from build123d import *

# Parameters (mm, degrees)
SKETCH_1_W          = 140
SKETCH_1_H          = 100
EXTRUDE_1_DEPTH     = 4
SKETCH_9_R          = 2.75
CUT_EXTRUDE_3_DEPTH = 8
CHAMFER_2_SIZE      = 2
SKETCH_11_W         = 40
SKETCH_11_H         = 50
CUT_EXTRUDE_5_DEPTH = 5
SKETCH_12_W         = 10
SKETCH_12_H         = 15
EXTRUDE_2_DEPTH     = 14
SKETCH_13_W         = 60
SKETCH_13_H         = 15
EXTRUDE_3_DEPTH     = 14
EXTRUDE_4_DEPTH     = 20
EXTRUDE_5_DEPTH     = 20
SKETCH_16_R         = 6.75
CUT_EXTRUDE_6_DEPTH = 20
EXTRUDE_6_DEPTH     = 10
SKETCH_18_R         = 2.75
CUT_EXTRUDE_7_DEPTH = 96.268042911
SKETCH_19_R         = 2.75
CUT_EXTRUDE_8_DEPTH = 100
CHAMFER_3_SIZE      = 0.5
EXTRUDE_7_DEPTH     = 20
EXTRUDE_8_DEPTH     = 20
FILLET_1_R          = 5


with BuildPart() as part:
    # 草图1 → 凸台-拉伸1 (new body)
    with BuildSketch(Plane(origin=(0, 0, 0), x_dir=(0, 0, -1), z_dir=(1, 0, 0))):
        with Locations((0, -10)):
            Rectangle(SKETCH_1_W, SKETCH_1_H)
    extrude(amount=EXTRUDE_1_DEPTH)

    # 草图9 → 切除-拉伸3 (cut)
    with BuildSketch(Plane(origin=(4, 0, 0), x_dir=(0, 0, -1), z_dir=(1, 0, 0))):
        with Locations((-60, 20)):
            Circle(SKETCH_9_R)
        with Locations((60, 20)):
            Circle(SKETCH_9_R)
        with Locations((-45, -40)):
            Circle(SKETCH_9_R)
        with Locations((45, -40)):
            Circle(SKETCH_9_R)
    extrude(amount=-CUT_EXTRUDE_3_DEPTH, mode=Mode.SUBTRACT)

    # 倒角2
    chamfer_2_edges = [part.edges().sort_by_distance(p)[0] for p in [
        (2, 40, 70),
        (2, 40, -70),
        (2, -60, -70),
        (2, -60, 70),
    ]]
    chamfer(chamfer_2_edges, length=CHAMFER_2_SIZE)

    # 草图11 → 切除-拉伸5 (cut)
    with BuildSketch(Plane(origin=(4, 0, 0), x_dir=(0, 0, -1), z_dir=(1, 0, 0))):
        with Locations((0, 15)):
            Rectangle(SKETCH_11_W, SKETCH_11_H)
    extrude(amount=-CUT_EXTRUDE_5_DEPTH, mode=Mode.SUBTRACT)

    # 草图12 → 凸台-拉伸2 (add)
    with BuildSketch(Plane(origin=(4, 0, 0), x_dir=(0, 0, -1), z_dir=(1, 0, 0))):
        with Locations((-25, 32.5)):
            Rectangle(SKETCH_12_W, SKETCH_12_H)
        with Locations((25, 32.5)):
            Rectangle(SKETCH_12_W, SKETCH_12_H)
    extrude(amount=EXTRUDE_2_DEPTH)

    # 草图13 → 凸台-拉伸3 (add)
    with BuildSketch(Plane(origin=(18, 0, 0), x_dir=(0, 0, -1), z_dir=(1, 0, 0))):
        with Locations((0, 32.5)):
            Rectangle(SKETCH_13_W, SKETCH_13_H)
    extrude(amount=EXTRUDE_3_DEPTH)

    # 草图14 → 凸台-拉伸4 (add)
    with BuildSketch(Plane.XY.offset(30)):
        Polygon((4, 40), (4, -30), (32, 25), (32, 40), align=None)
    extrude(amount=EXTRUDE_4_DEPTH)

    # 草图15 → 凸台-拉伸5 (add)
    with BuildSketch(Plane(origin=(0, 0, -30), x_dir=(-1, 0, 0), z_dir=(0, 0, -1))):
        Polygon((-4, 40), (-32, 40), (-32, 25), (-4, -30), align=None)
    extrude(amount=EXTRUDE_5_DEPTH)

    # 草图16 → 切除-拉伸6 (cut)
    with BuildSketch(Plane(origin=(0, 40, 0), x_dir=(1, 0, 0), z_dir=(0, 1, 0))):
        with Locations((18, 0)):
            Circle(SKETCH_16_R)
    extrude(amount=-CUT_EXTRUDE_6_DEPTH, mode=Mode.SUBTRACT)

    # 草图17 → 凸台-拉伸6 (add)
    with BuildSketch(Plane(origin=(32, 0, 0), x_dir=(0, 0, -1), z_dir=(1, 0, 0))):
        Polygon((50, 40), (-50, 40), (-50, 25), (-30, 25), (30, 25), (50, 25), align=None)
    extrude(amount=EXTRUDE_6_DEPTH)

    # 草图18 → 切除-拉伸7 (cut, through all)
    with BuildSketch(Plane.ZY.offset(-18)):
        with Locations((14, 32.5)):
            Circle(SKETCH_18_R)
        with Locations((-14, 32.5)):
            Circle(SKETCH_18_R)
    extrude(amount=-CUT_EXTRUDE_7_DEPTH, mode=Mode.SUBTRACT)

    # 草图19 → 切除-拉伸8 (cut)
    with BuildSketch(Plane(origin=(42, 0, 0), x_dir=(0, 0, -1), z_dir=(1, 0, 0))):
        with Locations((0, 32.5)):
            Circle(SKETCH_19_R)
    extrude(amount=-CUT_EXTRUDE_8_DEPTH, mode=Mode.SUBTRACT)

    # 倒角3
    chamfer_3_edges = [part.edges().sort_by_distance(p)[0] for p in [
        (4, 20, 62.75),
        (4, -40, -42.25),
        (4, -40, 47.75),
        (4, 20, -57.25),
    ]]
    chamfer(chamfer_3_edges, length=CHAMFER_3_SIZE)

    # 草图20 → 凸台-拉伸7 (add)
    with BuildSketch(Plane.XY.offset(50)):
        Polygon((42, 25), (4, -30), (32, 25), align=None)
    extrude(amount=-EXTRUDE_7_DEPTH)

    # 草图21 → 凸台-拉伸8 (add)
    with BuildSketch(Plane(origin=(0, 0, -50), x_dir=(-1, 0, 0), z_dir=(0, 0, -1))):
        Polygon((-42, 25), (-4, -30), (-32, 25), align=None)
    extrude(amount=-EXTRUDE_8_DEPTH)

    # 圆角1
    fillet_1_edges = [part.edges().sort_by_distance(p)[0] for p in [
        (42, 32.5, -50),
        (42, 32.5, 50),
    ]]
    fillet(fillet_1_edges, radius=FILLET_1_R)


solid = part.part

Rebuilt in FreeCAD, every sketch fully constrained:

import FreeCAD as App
import Part
import Sketcher

V = App.Vector


def edges_at(feature, points):
    """Names of the edges that pass closest to the given points."""
    edges = feature.Shape.Edges
    near = lambda p: min(range(len(edges)), key=lambda i: edges[i].distToShape(Part.Vertex(*p))[0])
    return sorted({f"Edge{near(p) + 1}" for p in points})

doc = App.newDocument("Part")
body = doc.addObject("PartDesign::Body", "Body")

# Sketch on YZ plane
sketch1 = body.newObject("Sketcher::SketchObject", "Sketch")
sketch1.AttachmentSupport = (doc.getObject("YZ_Plane"), [""])
sketch1.MapMode = "FlatFace"
sketch1.addGeometry([
    Part.LineSegment(V(40, 70, 0), V(-60, 70, 0)),
    Part.LineSegment(V(-60, 70, 0), V(-60, -70, 0)),
    Part.LineSegment(V(-60, -70, 0), V(40, -70, 0)),
    Part.LineSegment(V(40, -70, 0), V(40, 70, 0)),
], False)
sketch1.addConstraint([
    Sketcher.Constraint("Coincident", 0, 2, 1, 1),
    Sketcher.Constraint("Coincident", 1, 2, 2, 1),
    Sketcher.Constraint("Coincident", 2, 2, 3, 1),
    Sketcher.Constraint("Coincident", 3, 2, 0, 1),
    Sketcher.Constraint("Horizontal", 0),
    Sketcher.Constraint("Vertical", 1),
    Sketcher.Constraint("Horizontal", 2),
    Sketcher.Constraint("Vertical", 3),
    Sketcher.Constraint("DistanceX", 0, 2, 0, 1, 100.0),
    Sketcher.Constraint("DistanceY", 1, 2, 1, 1, 140.0),
    Sketcher.Constraint("DistanceX", 0, 2, -1, 1, 60.0),
    Sketcher.Constraint("DistanceY", -1, 1, 0, 2, 70.0),
])
pad1 = body.newObject("PartDesign::Pad", "Pad")
pad1.Profile = sketch1
pad1.Length = 4

# Sketch on YZ plane
sketch2 = body.newObject("Sketcher::SketchObject", "Sketch001")
sketch2.AttachmentSupport = (doc.getObject("YZ_Plane"), [""])
sketch2.MapMode = "FlatFace"
sketch2.AttachmentOffset = App.Placement(V(0, 0, 4), App.Rotation())
sketch2.addGeometry([
    Part.Circle(V(20, 60, 0), V(0, 0, 1), 2.75),
    Part.Circle(V(20, -60, 0), V(0, 0, 1), 2.75),
    Part.Circle(V(-40, 45, 0), V(0, 0, 1), 2.75),
    Part.Circle(V(-40, -45, 0), V(0, 0, 1), 2.75),
], False)
sketch2.addConstraint([
    Sketcher.Constraint("Equal", 0, 1),
    Sketcher.Constraint("Equal", 1, 2),
    Sketcher.Constraint("Equal", 2, 3),
    Sketcher.Constraint("Symmetric", 0, 3, 1, 3, -1),
    Sketcher.Constraint("Symmetric", 2, 3, 3, 3, -1),
    Sketcher.Constraint("Diameter", 0, 5.5),
    Sketcher.Constraint("DistanceX", -1, 1, 0, 3, 20.0),
    Sketcher.Constraint("DistanceY", -1, 1, 0, 3, 60.0),
    Sketcher.Constraint("DistanceX", 2, 3, -1, 1, 40.0),
    Sketcher.Constraint("DistanceY", -1, 1, 2, 3, 45.0),
])
pocket1 = body.newObject("PartDesign::Pocket", "Pocket")
pocket1.Profile = sketch2
pocket1.Length = 8
doc.recompute()

chamfer = body.newObject("PartDesign::Chamfer", "Chamfer")
chamfer.Base = (pocket1, edges_at(pocket1, [
    (2, 40, 70),
    (2, 40, -70),
    (2, -60, -70),
    (2, -60, 70),
]))
chamfer.Size = 2

# Sketch on YZ plane
sketch3 = body.newObject("Sketcher::SketchObject", "Sketch002")
sketch3.AttachmentSupport = (doc.getObject("YZ_Plane"), [""])
sketch3.MapMode = "FlatFace"
sketch3.AttachmentOffset = App.Placement(V(0, 0, 4), App.Rotation())
sketch3.addGeometry([
    Part.LineSegment(V(40, 20, 0), V(-10, 20, 0)),
    Part.LineSegment(V(-10, 20, 0), V(-10, -20, 0)),
    Part.LineSegment(V(-10, -20, 0), V(40, -20, 0)),
    Part.LineSegment(V(40, -20, 0), V(40, 20, 0)),
], False)
sketch3.addConstraint([
    Sketcher.Constraint("Coincident", 0, 2, 1, 1),
    Sketcher.Constraint("Coincident", 1, 2, 2, 1),
    Sketcher.Constraint("Coincident", 2, 2, 3, 1),
    Sketcher.Constraint("Coincident", 3, 2, 0, 1),
    Sketcher.Constraint("Horizontal", 0),
    Sketcher.Constraint("Vertical", 1),
    Sketcher.Constraint("Horizontal", 2),
    Sketcher.Constraint("Vertical", 3),
    Sketcher.Constraint("DistanceX", 0, 2, 0, 1, 50.0),
    Sketcher.Constraint("DistanceY", 1, 2, 1, 1, 40.0),
    Sketcher.Constraint("DistanceX", 0, 2, -1, 1, 10.0),
    Sketcher.Constraint("DistanceY", -1, 1, 0, 2, 20.0),
])
pocket2 = body.newObject("PartDesign::Pocket", "Pocket001")
pocket2.Profile = sketch3
pocket2.Length = 5

# Sketch on YZ plane
sketch4 = body.newObject("Sketcher::SketchObject", "Sketch003")
sketch4.AttachmentSupport = (doc.getObject("YZ_Plane"), [""])
sketch4.MapMode = "FlatFace"
sketch4.AttachmentOffset = App.Placement(V(0, 0, 4), App.Rotation())
sketch4.addGeometry([
    Part.LineSegment(V(40, 30, 0), V(25, 30, 0)),  # 0
    Part.LineSegment(V(25, 30, 0), V(25, 20, 0)),  # 1
    Part.LineSegment(V(25, 20, 0), V(40, 20, 0)),  # 2
    Part.LineSegment(V(40, 20, 0), V(40, 30, 0)),  # 3
    Part.LineSegment(V(40, -20, 0), V(25, -20, 0)),  # 4
    Part.LineSegment(V(25, -20, 0), V(25, -30, 0)),  # 5
    Part.LineSegment(V(25, -30, 0), V(40, -30, 0)),  # 6
    Part.LineSegment(V(40, -30, 0), V(40, -20, 0)),  # 7
], False)
sketch4.addConstraint([
    Sketcher.Constraint("Coincident", 0, 2, 1, 1),
    Sketcher.Constraint("Coincident", 1, 2, 2, 1),
    Sketcher.Constraint("Coincident", 2, 2, 3, 1),
    Sketcher.Constraint("Coincident", 3, 2, 0, 1),
    Sketcher.Constraint("Coincident", 4, 2, 5, 1),
    Sketcher.Constraint("Coincident", 5, 2, 6, 1),
    Sketcher.Constraint("Coincident", 6, 2, 7, 1),
    Sketcher.Constraint("Coincident", 7, 2, 4, 1),
    Sketcher.Constraint("Horizontal", 0),
    Sketcher.Constraint("Vertical", 1),
    Sketcher.Constraint("Horizontal", 2),
    Sketcher.Constraint("Vertical", 3),
    Sketcher.Constraint("Horizontal", 4),
    Sketcher.Constraint("Vertical", 5),
    Sketcher.Constraint("Horizontal", 6),
    Sketcher.Constraint("Vertical", 7),
    Sketcher.Constraint("Symmetric", 1, 2, 4, 2, -1),
    Sketcher.Constraint("Symmetric", 3, 2, 6, 2, -1),
    Sketcher.Constraint("DistanceX", 0, 2, 0, 1, 15.0),
    Sketcher.Constraint("DistanceY", 1, 2, 1, 1, 10.0),
    Sketcher.Constraint("DistanceX", -1, 1, 0, 2, 25.0),
    Sketcher.Constraint("DistanceY", -1, 1, 0, 2, 30.0),
])
pad2 = body.newObject("PartDesign::Pad", "Pad001")
pad2.Profile = sketch4
pad2.Length = 14

# Sketch on YZ plane
sketch5 = body.newObject("Sketcher::SketchObject", "Sketch004")
sketch5.AttachmentSupport = (doc.getObject("YZ_Plane"), [""])
sketch5.MapMode = "FlatFace"
sketch5.AttachmentOffset = App.Placement(V(0, 0, 18), App.Rotation())
sketch5.addGeometry([
    Part.LineSegment(V(40, 30, 0), V(25, 30, 0)),
    Part.LineSegment(V(25, 30, 0), V(25, -30, 0)),
    Part.LineSegment(V(25, -30, 0), V(40, -30, 0)),
    Part.LineSegment(V(40, -30, 0), V(40, 30, 0)),
], False)
sketch5.addConstraint([
    Sketcher.Constraint("Coincident", 0, 2, 1, 1),
    Sketcher.Constraint("Coincident", 1, 2, 2, 1),
    Sketcher.Constraint("Coincident", 2, 2, 3, 1),
    Sketcher.Constraint("Coincident", 3, 2, 0, 1),
    Sketcher.Constraint("Horizontal", 0),
    Sketcher.Constraint("Vertical", 1),
    Sketcher.Constraint("Horizontal", 2),
    Sketcher.Constraint("Vertical", 3),
    Sketcher.Constraint("DistanceX", 0, 2, 0, 1, 15.0),
    Sketcher.Constraint("DistanceY", 1, 2, 1, 1, 60.0),
    Sketcher.Constraint("DistanceX", -1, 1, 0, 2, 25.0),
    Sketcher.Constraint("DistanceY", -1, 1, 0, 2, 30.0),
])
pad3 = body.newObject("PartDesign::Pad", "Pad002")
pad3.Profile = sketch5
pad3.Length = 14

# Sketch on XY plane
sketch6 = body.newObject("Sketcher::SketchObject", "Sketch005")
sketch6.AttachmentSupport = (doc.getObject("XY_Plane"), [""])
sketch6.MapMode = "FlatFace"
sketch6.AttachmentOffset = App.Placement(V(0, 0, 30), App.Rotation())
sketch6.addGeometry([
    Part.LineSegment(V(4, 40, 0), V(4, -30, 0)),
    Part.LineSegment(V(4, -30, 0), V(32, 25, 0)),
    Part.LineSegment(V(32, 25, 0), V(32, 40, 0)),
    Part.LineSegment(V(32, 40, 0), V(4, 40, 0)),
], False)
sketch6.addConstraint([
    Sketcher.Constraint("Coincident", 0, 2, 1, 1),
    Sketcher.Constraint("Coincident", 1, 2, 2, 1),
    Sketcher.Constraint("Coincident", 2, 2, 3, 1),
    Sketcher.Constraint("Coincident", 3, 2, 0, 1),
    Sketcher.Constraint("Vertical", 0),
    Sketcher.Constraint("Vertical", 2),
    Sketcher.Constraint("Horizontal", 3),
    Sketcher.Constraint("DistanceX", 3, 2, 3, 1, 28.0),
    Sketcher.Constraint("DistanceY", 0, 2, 0, 1, 70.0),
    Sketcher.Constraint("DistanceY", 2, 1, 2, 2, 15.0),
    Sketcher.Constraint("DistanceX", -1, 1, 0, 2, 4.0),
    Sketcher.Constraint("DistanceY", 0, 2, -1, 1, 30.0),
])
pad4 = body.newObject("PartDesign::Pad", "Pad003")
pad4.Profile = sketch6
pad4.Length = 20

# Sketch on XY plane
sketch7 = body.newObject("Sketcher::SketchObject", "Sketch006")
sketch7.AttachmentSupport = (doc.getObject("XY_Plane"), [""])
sketch7.MapMode = "FlatFace"
sketch7.AttachmentOffset = App.Placement(V(0, 0, -30), App.Rotation())
sketch7.addGeometry([
    Part.LineSegment(V(4, 40, 0), V(32, 40, 0)),
    Part.LineSegment(V(32, 40, 0), V(32, 25, 0)),
    Part.LineSegment(V(32, 25, 0), V(4, -30, 0)),
    Part.LineSegment(V(4, -30, 0), V(4, 40, 0)),
], False)
sketch7.addConstraint([
    Sketcher.Constraint("Coincident", 0, 2, 1, 1),
    Sketcher.Constraint("Coincident", 1, 2, 2, 1),
    Sketcher.Constraint("Coincident", 2, 2, 3, 1),
    Sketcher.Constraint("Coincident", 3, 2, 0, 1),
    Sketcher.Constraint("Horizontal", 0),
    Sketcher.Constraint("Vertical", 1),
    Sketcher.Constraint("Vertical", 3),
    Sketcher.Constraint("DistanceX", 0, 1, 0, 2, 28.0),
    Sketcher.Constraint("DistanceY", 1, 2, 1, 1, 15.0),
    Sketcher.Constraint("DistanceY", 3, 1, 3, 2, 70.0),
    Sketcher.Constraint("DistanceX", -1, 1, 0, 2, 32.0),
    Sketcher.Constraint("DistanceY", -1, 1, 0, 2, 40.0),
])
pad5 = body.newObject("PartDesign::Pad", "Pad004")
pad5.Profile = sketch7
pad5.Length = 20
pad5.Reversed = True

# Sketch on XZ plane
sketch8 = body.newObject("Sketcher::SketchObject", "Sketch007")
sketch8.AttachmentSupport = (doc.getObject("XZ_Plane"), [""])
sketch8.MapMode = "FlatFace"
sketch8.AttachmentOffset = App.Placement(V(0, 0, -40), App.Rotation())
sketch8.addGeometry(Part.Circle(V(18, 0, 0), V(0, 0, 1), 6.75), False)
sketch8.addConstraint([
    Sketcher.Constraint("PointOnObject", 0, 3, -1),
    Sketcher.Constraint("Diameter", 0, 13.5),
    Sketcher.Constraint("DistanceX", -1, 1, 0, 3, 18.0),
])
pocket3 = body.newObject("PartDesign::Pocket", "Pocket002")
pocket3.Profile = sketch8
pocket3.Length = 20
pocket3.Reversed = True

# Sketch on YZ plane
sketch9 = body.newObject("Sketcher::SketchObject", "Sketch008")
sketch9.AttachmentSupport = (doc.getObject("YZ_Plane"), [""])
sketch9.MapMode = "FlatFace"
sketch9.AttachmentOffset = App.Placement(V(0, 0, 32), App.Rotation())
sketch9.addGeometry([
    Part.LineSegment(V(40, -50, 0), V(40, 50, 0)),
    Part.LineSegment(V(40, 50, 0), V(25, 50, 0)),
    Part.LineSegment(V(25, 50, 0), V(25, -50, 0)),
    Part.LineSegment(V(25, -50, 0), V(40, -50, 0)),
], False)
sketch9.addConstraint([
    Sketcher.Constraint("Coincident", 0, 2, 1, 1),
    Sketcher.Constraint("Coincident", 1, 2, 2, 1),
    Sketcher.Constraint("Coincident", 2, 2, 3, 1),
    Sketcher.Constraint("Coincident", 3, 2, 0, 1),
    Sketcher.Constraint("Vertical", 0),
    Sketcher.Constraint("Horizontal", 1),
    Sketcher.Constraint("Vertical", 2),
    Sketcher.Constraint("Horizontal", 3),
    Sketcher.Constraint("DistanceX", 1, 2, 1, 1, 15.0),
    Sketcher.Constraint("DistanceY", 0, 1, 0, 2, 100.0),
    Sketcher.Constraint("DistanceX", -1, 1, 0, 2, 40.0),
    Sketcher.Constraint("DistanceY", -1, 1, 0, 2, 50.0),
])
pad6 = body.newObject("PartDesign::Pad", "Pad005")
pad6.Profile = sketch9
pad6.Length = 10

# Sketch on YZ plane
sketch10 = body.newObject("Sketcher::SketchObject", "Sketch009")
sketch10.AttachmentSupport = (doc.getObject("YZ_Plane"), [""])
sketch10.MapMode = "FlatFace"
sketch10.AttachmentOffset = App.Placement(V(0, 0, 18), App.Rotation())
sketch10.addGeometry([
    Part.Circle(V(32.5, 14, 0), V(0, 0, 1), 2.75),
    Part.Circle(V(32.5, -14, 0), V(0, 0, 1), 2.75),
], False)
sketch10.addConstraint([
    Sketcher.Constraint("Equal", 0, 1),
    Sketcher.Constraint("Symmetric", 0, 3, 1, 3, -1),
    Sketcher.Constraint("Diameter", 0, 5.5),
    Sketcher.Constraint("DistanceY", -1, 1, 0, 3, 14.0),
    Sketcher.Constraint("DistanceX", -1, 1, 0, 3, 32.5),
])
pocket4 = body.newObject("PartDesign::Pocket", "Pocket003")
pocket4.Profile = sketch10
pocket4.Type = "ThroughAll"
pocket4.Reversed = True

# Sketch on YZ plane
sketch11 = body.newObject("Sketcher::SketchObject", "Sketch010")
sketch11.AttachmentSupport = (doc.getObject("YZ_Plane"), [""])
sketch11.MapMode = "FlatFace"
sketch11.AttachmentOffset = App.Placement(V(0, 0, 42), App.Rotation())
sketch11.addGeometry(Part.Circle(V(32.5, 0, 0), V(0, 0, 1), 2.75), False)
sketch11.addConstraint([
    Sketcher.Constraint("PointOnObject", 0, 3, -1),
    Sketcher.Constraint("Diameter", 0, 5.5),
    Sketcher.Constraint("DistanceX", -1, 1, 0, 3, 32.5),
])
pocket5 = body.newObject("PartDesign::Pocket", "Pocket004")
pocket5.Profile = sketch11
pocket5.Length = 100
doc.recompute()

chamfer2 = body.newObject("PartDesign::Chamfer", "Chamfer001")
chamfer2.Base = (pocket5, edges_at(pocket5, [
    (4, 20, 62.75),
    (4, -40, -42.25),
    (4, -40, 47.75),
    (4, 20, -57.25),
]))
chamfer2.Size = 0.5

# Sketch on XY plane
sketch12 = body.newObject("Sketcher::SketchObject", "Sketch011")
sketch12.AttachmentSupport = (doc.getObject("XY_Plane"), [""])
sketch12.MapMode = "FlatFace"
sketch12.AttachmentOffset = App.Placement(V(0, 0, 50), App.Rotation())
sketch12.addGeometry([
    Part.LineSegment(V(4, -30, 0), V(42, 25, 0)),
    Part.LineSegment(V(42, 25, 0), V(32, 25, 0)),
    Part.LineSegment(V(32, 25, 0), V(4, -30, 0)),
], False)
sketch12.addConstraint([
    Sketcher.Constraint("Coincident", 0, 2, 1, 1),
    Sketcher.Constraint("Coincident", 1, 2, 2, 1),
    Sketcher.Constraint("Coincident", 2, 2, 0, 1),
    Sketcher.Constraint("Horizontal", 1),
    Sketcher.Constraint("DistanceX", 1, 2, 1, 1, 10.0),
    Sketcher.Constraint("DistanceX", -1, 1, 0, 2, 42.0),
    Sketcher.Constraint("DistanceY", -1, 1, 0, 2, 25.0),
    Sketcher.Constraint("DistanceX", -1, 1, 2, 2, 4.0),
    Sketcher.Constraint("DistanceY", 2, 2, -1, 1, 30.0),
])
pad7 = body.newObject("PartDesign::Pad", "Pad006")
pad7.Profile = sketch12
pad7.Length = 20
pad7.Reversed = True

# Sketch on XY plane
sketch13 = body.newObject("Sketcher::SketchObject", "Sketch012")
sketch13.AttachmentSupport = (doc.getObject("XY_Plane"), [""])
sketch13.MapMode = "FlatFace"
sketch13.AttachmentOffset = App.Placement(V(0, 0, -50), App.Rotation())
sketch13.addGeometry([
    Part.LineSegment(V(42, 25, 0), V(4, -30, 0)),
    Part.LineSegment(V(4, -30, 0), V(32, 25, 0)),
    Part.LineSegment(V(32, 25, 0), V(42, 25, 0)),
], False)
sketch13.addConstraint([
    Sketcher.Constraint("Coincident", 0, 2, 1, 1),
    Sketcher.Constraint("Coincident", 1, 2, 2, 1),
    Sketcher.Constraint("Coincident", 2, 2, 0, 1),
    Sketcher.Constraint("Horizontal", 2),
    Sketcher.Constraint("DistanceX", 2, 1, 2, 2, 10.0),
    Sketcher.Constraint("DistanceX", -1, 1, 0, 2, 4.0),
    Sketcher.Constraint("DistanceY", 0, 2, -1, 1, 30.0),
    Sketcher.Constraint("DistanceX", -1, 1, 1, 2, 32.0),
    Sketcher.Constraint("DistanceY", -1, 1, 1, 2, 25.0),
])
pad8 = body.newObject("PartDesign::Pad", "Pad007")
pad8.Profile = sketch13
pad8.Length = 20
doc.recompute()

fillet = body.newObject("PartDesign::Fillet", "Fillet")
fillet.Base = (pad8, edges_at(pad8, [(42, 32.5, -50), (42, 32.5, 50)]))
fillet.Radius = 5

doc.recompute()
